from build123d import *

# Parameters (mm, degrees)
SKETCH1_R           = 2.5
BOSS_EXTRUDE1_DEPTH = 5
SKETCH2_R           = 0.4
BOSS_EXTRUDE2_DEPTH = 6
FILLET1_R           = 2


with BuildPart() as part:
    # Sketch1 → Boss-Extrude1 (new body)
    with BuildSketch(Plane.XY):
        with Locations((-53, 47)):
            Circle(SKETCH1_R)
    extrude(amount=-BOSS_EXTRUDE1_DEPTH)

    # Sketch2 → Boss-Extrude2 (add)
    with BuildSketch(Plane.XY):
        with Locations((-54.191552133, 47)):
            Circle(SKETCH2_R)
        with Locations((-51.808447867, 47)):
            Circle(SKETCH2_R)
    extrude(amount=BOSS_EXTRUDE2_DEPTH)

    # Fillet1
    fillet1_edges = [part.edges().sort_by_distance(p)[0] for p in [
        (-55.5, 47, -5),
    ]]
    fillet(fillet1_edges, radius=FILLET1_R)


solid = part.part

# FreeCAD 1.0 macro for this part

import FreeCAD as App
import Part
import Sketcher
from FreeCAD import Vector
Q = App.Units.Quantity


def edges_at(feature, points):
    """Names of the edges that pass closest to the given points."""
    edges = feature.Shape.Edges
    near = lambda p: min(range(len(edges)), key=lambda i: edges[i].distToShape(Part.Vertex(*p))[0])
    return sorted({f"Edge{near(p) + 1}" for p in points})

doc = App.newDocument("Part")
body = doc.addObject("PartDesign::Body", "Body")

# Sketch on XY plane
sketch1 = body.newObject("Sketcher::SketchObject", "Sketch")
sketch1.AttachmentSupport = (doc.getObject("XY_Plane"), [""])
sketch1.MapMode = "FlatFace"
sketch1.addGeometry(Part.Circle(Vector(-53, 47, 0), Vector(0, 0, 1), 2.5), False)
sketch1.addConstraint([
    Sketcher.Constraint("Diameter", 0, Q("5 mm")),
    Sketcher.Constraint("DistanceX", 0, 3, -1, 1, Q("53 mm")),
    Sketcher.Constraint("DistanceY", -1, 1, 0, 3, Q("47 mm")),
])
pad1 = body.newObject("PartDesign::Pad", "Pad")
pad1.Profile = sketch1
pad1.Length = 5
pad1.Reversed = True

# Sketch on XY plane
sketch2 = body.newObject("Sketcher::SketchObject", "Sketch001")
sketch2.AttachmentSupport = (doc.getObject("XY_Plane"), [""])
sketch2.MapMode = "FlatFace"
sketch2.addGeometry([
    Part.Circle(Vector(-54.19, 47, 0), Vector(0, 0, 1), 0.4),
    Part.Circle(Vector(-51.81, 47, 0), Vector(0, 0, 1), 0.4),
], False)
sketch2.addConstraint([
    Sketcher.Constraint("Equal", 0, 1),
    Sketcher.Constraint("Horizontal", 0, 3, 1, 3),
    Sketcher.Constraint("Diameter", 0, Q("0.8 mm")),
    Sketcher.Constraint("DistanceY", -1, 1, 0, 3, Q("47 mm")),
    Sketcher.Constraint("DistanceX", 0, 3, -1, 1, Q("54.191552 mm")),
    Sketcher.Constraint("DistanceX", 1, 3, -1, 1, Q("51.808448 mm")),
])
pad2 = body.newObject("PartDesign::Pad", "Pad001")
pad2.Profile = sketch2
pad2.Length = 6
doc.recompute()

fillet = body.newObject("PartDesign::Fillet", "Fillet")
fillet.Base = (pad2, edges_at(pad2, [(-55.5, 47, -5)]))
fillet.Radius = 2

doc.recompute()
